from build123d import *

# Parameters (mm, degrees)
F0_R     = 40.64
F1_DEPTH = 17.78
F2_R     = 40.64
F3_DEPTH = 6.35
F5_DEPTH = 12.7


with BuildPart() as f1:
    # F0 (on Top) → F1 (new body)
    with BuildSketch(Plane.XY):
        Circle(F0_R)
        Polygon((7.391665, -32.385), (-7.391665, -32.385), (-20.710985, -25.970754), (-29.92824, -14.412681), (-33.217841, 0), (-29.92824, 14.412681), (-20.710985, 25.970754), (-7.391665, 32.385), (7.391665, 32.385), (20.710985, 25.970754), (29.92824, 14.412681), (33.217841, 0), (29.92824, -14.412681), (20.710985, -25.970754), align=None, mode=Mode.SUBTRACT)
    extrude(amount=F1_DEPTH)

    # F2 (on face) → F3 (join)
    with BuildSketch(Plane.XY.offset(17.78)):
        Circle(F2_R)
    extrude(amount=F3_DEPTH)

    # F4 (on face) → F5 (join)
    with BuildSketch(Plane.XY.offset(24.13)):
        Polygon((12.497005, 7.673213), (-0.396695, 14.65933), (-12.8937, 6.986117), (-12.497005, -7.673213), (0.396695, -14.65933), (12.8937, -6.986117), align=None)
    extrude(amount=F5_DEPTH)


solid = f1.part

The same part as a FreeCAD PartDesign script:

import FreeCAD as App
import Part
import Sketcher
from FreeCAD import Vector
Q = App.Units.Quantity

doc = App.newDocument("Part")
params = doc.addObject("Spreadsheet::Sheet", "Params")
for row, (alias, value) in enumerate([
    ("sketch1_diameter", "3.2 in"),
    ("pad1_length", "0.7 in"),
    ("sketch2_diameter", "3.2 in"),
    ("pad2_length", "0.25 in"),
    ("pad3_length", "0.5 in"),
], start=1):
    params.set(f"A{row}", alias)
    params.set(f"B{row}", "=" + value)
    params.setAlias(f"B{row}", alias)

body = doc.addObject("PartDesign::Body", "Body")

sketch1 = body.newObject("Sketcher::SketchObject", "Sketch")
sketch1.AttachmentSupport = (doc.getObject("XY_Plane"), [""])
sketch1.MapMode = "FlatFace"
sketch1.addGeometry([
    Part.Circle(Vector(0, 0, 0), Vector(0, 0, 1), 41),
    Part.LineSegment(Vector(21, -26, 0), Vector(7, -32, 0)),
    Part.LineSegment(Vector(7, -32, 0), Vector(-7, -32, 0)),
    Part.LineSegment(Vector(-7, -32, 0), Vector(-21, -26, 0)),
    Part.LineSegment(Vector(-21, -26, 0), Vector(-30, -14, 0)),
    Part.LineSegment(Vector(-30, -14, 0), Vector(-33, 0, 0)),
    Part.LineSegment(Vector(-33, 0, 0), Vector(-30, 14, 0)),
    Part.LineSegment(Vector(-30, 14, 0), Vector(-21, 26, 0)),
    Part.LineSegment(Vector(-21, 26, 0), Vector(-7, 32, 0)),
    Part.LineSegment(Vector(-7, 32, 0), Vector(7, 32, 0)),
    Part.LineSegment(Vector(7, 32, 0), Vector(21, 26, 0)),
    Part.LineSegment(Vector(21, 26, 0), Vector(30, 14, 0)),
    Part.LineSegment(Vector(30, 14, 0), Vector(33, 0, 0)),
    Part.LineSegment(Vector(33, 0, 0), Vector(30, -14, 0)),
    Part.LineSegment(Vector(30, -14, 0), Vector(21, -26, 0)),
], False)
sketch1.addConstraint([
    Sketcher.Constraint("Coincident", 1, 2, 2, 1),
    Sketcher.Constraint("Coincident", 2, 2, 3, 1),
    Sketcher.Constraint("Coincident", 3, 2, 4, 1),
    Sketcher.Constraint("Coincident", 4, 2, 5, 1),
    Sketcher.Constraint("Coincident", 5, 2, 6, 1),
    Sketcher.Constraint("Coincident", 6, 2, 7, 1),
    Sketcher.Constraint("Coincident", 7, 2, 8, 1),
    Sketcher.Constraint("Coincident", 8, 2, 9, 1),
    Sketcher.Constraint("Coincident", 9, 2, 10, 1),
    Sketcher.Constraint("Coincident", 10, 2, 11, 1),
    Sketcher.Constraint("Coincident", 11, 2, 12, 1),
    Sketcher.Constraint("Coincident", 12, 2, 13, 1),
    Sketcher.Constraint("Coincident", 13, 2, 14, 1),
    Sketcher.Constraint("Coincident", 14, 2, 1, 1),
    Sketcher.Constraint("Horizontal", 2),
    Sketcher.Constraint("Horizontal", 9),
    Sketcher.Constraint("Coincident", 0, 3, -1, 1),
    Sketcher.Constraint("Symmetric", 1, 2, 8, 2, -1, 1),
    Sketcher.Constraint("Symmetric", 3, 2, 10, 2, -1, 1),
    Sketcher.Constraint("Symmetric", 4, 2, 11, 2, -1, 1),
    Sketcher.Constraint("Symmetric", 5, 2, 12, 2, -1, 1),
    Sketcher.Constraint("Symmetric", 6, 2, 13, 2, -1, 1),
    Sketcher.Constraint("Symmetric", 7, 2, 14, 2, -1, 1),
    Sketcher.Constraint("Symmetric", 7, 2, 10, 2, -2),
    Sketcher.Constraint("Symmetric", 6, 2, 11, 2, -2),
    Sketcher.Constraint("PointOnObject", 5, 2, -1),
    Sketcher.Constraint("Parallel", 3, 10),
    Sketcher.Constraint("Vertical", 2, 2, 8, 2),
    Sketcher.Constraint("Equal", 3, 4),
    Sketcher.Constraint("Equal", 4, 5),
    Sketcher.Constraint("Diameter", 0, Q("3.2 in")),
    Sketcher.Constraint("DistanceY", 1, 2, -1, 1, Q("1.275 in")),
    Sketcher.Constraint("DistanceX", 2, 2, 2, 1, 14.78333),
    Sketcher.Constraint("DistanceX", 5, 2, 4, 2, 3.289601),
    Sketcher.Constraint("Distance", 1, 14.78333),
    Sketcher.Constraint("DistanceX", 4, 2, -1, 1, 29.92824),
])
sketch1.setExpression("Constraints[30]", "Params.sketch1_diameter")
pad1 = body.newObject("PartDesign::Pad", "Pad")
pad1.Profile = sketch1
pad1.setExpression("Length", "Params.pad1_length")

sketch2 = body.newObject("Sketcher::SketchObject", "Sketch001")
sketch2.AttachmentSupport = (doc.getObject("XY_Plane"), [""])
sketch2.MapMode = "FlatFace"
sketch2.AttachmentOffset = App.Placement(Vector(0, 0, 0.7 * 25.4), App.Rotation())
sketch2.addGeometry(Part.Circle(Vector(0, 0, 0), Vector(0, 0, 1), 41), False)
sketch2.addConstraint([
    Sketcher.Constraint("Coincident", 0, 3, -1, 1),
    Sketcher.Constraint("Diameter", 0, Q("3.2 in")),
])
sketch2.setExpression("Constraints[1]", "Params.sketch2_diameter")
pad2 = body.newObject("PartDesign::Pad", "Pad001")
pad2.Profile = sketch2
pad2.setExpression("Length", "Params.pad2_length")

sketch3 = body.newObject("Sketcher::SketchObject", "Sketch002")
sketch3.AttachmentSupport = (doc.getObject("XY_Plane"), [""])
sketch3.MapMode = "FlatFace"
sketch3.AttachmentOffset = App.Placement(Vector(0, 0, 0.95 * 25.4), App.Rotation())
sketch3.addGeometry([
    Part.LineSegment(Vector(12, 8, 0), Vector(0, 15, 0)),
    Part.LineSegment(Vector(0, 15, 0), Vector(-13, 7, 0)),
    Part.LineSegment(Vector(-13, 7, 0), Vector(-12, -8, 0)),
    Part.LineSegment(Vector(-12, -8, 0), Vector(0, -15, 0)),
    Part.LineSegment(Vector(0, -15, 0), Vector(13, -7, 0)),
    Part.LineSegment(Vector(13, -7, 0), Vector(12, 8, 0)),
], False)
sketch3.addConstraint([
    Sketcher.Constraint("Coincident", 0, 2, 1, 1),
    Sketcher.Constraint("Coincident", 1, 2, 2, 1),
    Sketcher.Constraint("Coincident", 2, 2, 3, 1),
    Sketcher.Constraint("Coincident", 3, 2, 4, 1),
    Sketcher.Constraint("Coincident", 4, 2, 5, 1),
    Sketcher.Constraint("Coincident", 5, 2, 0, 1),
    Sketcher.Constraint("Symmetric", 0, 2, 3, 2, -1, 1),
    Sketcher.Constraint("Symmetric", 1, 2, 4, 2, -1, 1),
    Sketcher.Constraint("Symmetric", 2, 2, 5, 2, -1, 1),
    Sketcher.Constraint("Equal", 0, 1),
    Sketcher.Constraint("Equal", 1, 2),
    Sketcher.Constraint("DistanceX", 1, 2, -1, 1, 12.8937),
    Sketcher.Constraint("DistanceX", 2, 2, 3, 2, 12.8937),
    Sketcher.Constraint("DistanceY", -1, 1, 0, 2, 14.65933),
    Sketcher.Constraint("DistanceY", 2, 2, 1, 2, 14.65933),
])
pad3 = body.newObject("PartDesign::Pad", "Pad002")
pad3.Profile = sketch3
pad3.setExpression("Length", "Params.pad3_length")

doc.recompute()
